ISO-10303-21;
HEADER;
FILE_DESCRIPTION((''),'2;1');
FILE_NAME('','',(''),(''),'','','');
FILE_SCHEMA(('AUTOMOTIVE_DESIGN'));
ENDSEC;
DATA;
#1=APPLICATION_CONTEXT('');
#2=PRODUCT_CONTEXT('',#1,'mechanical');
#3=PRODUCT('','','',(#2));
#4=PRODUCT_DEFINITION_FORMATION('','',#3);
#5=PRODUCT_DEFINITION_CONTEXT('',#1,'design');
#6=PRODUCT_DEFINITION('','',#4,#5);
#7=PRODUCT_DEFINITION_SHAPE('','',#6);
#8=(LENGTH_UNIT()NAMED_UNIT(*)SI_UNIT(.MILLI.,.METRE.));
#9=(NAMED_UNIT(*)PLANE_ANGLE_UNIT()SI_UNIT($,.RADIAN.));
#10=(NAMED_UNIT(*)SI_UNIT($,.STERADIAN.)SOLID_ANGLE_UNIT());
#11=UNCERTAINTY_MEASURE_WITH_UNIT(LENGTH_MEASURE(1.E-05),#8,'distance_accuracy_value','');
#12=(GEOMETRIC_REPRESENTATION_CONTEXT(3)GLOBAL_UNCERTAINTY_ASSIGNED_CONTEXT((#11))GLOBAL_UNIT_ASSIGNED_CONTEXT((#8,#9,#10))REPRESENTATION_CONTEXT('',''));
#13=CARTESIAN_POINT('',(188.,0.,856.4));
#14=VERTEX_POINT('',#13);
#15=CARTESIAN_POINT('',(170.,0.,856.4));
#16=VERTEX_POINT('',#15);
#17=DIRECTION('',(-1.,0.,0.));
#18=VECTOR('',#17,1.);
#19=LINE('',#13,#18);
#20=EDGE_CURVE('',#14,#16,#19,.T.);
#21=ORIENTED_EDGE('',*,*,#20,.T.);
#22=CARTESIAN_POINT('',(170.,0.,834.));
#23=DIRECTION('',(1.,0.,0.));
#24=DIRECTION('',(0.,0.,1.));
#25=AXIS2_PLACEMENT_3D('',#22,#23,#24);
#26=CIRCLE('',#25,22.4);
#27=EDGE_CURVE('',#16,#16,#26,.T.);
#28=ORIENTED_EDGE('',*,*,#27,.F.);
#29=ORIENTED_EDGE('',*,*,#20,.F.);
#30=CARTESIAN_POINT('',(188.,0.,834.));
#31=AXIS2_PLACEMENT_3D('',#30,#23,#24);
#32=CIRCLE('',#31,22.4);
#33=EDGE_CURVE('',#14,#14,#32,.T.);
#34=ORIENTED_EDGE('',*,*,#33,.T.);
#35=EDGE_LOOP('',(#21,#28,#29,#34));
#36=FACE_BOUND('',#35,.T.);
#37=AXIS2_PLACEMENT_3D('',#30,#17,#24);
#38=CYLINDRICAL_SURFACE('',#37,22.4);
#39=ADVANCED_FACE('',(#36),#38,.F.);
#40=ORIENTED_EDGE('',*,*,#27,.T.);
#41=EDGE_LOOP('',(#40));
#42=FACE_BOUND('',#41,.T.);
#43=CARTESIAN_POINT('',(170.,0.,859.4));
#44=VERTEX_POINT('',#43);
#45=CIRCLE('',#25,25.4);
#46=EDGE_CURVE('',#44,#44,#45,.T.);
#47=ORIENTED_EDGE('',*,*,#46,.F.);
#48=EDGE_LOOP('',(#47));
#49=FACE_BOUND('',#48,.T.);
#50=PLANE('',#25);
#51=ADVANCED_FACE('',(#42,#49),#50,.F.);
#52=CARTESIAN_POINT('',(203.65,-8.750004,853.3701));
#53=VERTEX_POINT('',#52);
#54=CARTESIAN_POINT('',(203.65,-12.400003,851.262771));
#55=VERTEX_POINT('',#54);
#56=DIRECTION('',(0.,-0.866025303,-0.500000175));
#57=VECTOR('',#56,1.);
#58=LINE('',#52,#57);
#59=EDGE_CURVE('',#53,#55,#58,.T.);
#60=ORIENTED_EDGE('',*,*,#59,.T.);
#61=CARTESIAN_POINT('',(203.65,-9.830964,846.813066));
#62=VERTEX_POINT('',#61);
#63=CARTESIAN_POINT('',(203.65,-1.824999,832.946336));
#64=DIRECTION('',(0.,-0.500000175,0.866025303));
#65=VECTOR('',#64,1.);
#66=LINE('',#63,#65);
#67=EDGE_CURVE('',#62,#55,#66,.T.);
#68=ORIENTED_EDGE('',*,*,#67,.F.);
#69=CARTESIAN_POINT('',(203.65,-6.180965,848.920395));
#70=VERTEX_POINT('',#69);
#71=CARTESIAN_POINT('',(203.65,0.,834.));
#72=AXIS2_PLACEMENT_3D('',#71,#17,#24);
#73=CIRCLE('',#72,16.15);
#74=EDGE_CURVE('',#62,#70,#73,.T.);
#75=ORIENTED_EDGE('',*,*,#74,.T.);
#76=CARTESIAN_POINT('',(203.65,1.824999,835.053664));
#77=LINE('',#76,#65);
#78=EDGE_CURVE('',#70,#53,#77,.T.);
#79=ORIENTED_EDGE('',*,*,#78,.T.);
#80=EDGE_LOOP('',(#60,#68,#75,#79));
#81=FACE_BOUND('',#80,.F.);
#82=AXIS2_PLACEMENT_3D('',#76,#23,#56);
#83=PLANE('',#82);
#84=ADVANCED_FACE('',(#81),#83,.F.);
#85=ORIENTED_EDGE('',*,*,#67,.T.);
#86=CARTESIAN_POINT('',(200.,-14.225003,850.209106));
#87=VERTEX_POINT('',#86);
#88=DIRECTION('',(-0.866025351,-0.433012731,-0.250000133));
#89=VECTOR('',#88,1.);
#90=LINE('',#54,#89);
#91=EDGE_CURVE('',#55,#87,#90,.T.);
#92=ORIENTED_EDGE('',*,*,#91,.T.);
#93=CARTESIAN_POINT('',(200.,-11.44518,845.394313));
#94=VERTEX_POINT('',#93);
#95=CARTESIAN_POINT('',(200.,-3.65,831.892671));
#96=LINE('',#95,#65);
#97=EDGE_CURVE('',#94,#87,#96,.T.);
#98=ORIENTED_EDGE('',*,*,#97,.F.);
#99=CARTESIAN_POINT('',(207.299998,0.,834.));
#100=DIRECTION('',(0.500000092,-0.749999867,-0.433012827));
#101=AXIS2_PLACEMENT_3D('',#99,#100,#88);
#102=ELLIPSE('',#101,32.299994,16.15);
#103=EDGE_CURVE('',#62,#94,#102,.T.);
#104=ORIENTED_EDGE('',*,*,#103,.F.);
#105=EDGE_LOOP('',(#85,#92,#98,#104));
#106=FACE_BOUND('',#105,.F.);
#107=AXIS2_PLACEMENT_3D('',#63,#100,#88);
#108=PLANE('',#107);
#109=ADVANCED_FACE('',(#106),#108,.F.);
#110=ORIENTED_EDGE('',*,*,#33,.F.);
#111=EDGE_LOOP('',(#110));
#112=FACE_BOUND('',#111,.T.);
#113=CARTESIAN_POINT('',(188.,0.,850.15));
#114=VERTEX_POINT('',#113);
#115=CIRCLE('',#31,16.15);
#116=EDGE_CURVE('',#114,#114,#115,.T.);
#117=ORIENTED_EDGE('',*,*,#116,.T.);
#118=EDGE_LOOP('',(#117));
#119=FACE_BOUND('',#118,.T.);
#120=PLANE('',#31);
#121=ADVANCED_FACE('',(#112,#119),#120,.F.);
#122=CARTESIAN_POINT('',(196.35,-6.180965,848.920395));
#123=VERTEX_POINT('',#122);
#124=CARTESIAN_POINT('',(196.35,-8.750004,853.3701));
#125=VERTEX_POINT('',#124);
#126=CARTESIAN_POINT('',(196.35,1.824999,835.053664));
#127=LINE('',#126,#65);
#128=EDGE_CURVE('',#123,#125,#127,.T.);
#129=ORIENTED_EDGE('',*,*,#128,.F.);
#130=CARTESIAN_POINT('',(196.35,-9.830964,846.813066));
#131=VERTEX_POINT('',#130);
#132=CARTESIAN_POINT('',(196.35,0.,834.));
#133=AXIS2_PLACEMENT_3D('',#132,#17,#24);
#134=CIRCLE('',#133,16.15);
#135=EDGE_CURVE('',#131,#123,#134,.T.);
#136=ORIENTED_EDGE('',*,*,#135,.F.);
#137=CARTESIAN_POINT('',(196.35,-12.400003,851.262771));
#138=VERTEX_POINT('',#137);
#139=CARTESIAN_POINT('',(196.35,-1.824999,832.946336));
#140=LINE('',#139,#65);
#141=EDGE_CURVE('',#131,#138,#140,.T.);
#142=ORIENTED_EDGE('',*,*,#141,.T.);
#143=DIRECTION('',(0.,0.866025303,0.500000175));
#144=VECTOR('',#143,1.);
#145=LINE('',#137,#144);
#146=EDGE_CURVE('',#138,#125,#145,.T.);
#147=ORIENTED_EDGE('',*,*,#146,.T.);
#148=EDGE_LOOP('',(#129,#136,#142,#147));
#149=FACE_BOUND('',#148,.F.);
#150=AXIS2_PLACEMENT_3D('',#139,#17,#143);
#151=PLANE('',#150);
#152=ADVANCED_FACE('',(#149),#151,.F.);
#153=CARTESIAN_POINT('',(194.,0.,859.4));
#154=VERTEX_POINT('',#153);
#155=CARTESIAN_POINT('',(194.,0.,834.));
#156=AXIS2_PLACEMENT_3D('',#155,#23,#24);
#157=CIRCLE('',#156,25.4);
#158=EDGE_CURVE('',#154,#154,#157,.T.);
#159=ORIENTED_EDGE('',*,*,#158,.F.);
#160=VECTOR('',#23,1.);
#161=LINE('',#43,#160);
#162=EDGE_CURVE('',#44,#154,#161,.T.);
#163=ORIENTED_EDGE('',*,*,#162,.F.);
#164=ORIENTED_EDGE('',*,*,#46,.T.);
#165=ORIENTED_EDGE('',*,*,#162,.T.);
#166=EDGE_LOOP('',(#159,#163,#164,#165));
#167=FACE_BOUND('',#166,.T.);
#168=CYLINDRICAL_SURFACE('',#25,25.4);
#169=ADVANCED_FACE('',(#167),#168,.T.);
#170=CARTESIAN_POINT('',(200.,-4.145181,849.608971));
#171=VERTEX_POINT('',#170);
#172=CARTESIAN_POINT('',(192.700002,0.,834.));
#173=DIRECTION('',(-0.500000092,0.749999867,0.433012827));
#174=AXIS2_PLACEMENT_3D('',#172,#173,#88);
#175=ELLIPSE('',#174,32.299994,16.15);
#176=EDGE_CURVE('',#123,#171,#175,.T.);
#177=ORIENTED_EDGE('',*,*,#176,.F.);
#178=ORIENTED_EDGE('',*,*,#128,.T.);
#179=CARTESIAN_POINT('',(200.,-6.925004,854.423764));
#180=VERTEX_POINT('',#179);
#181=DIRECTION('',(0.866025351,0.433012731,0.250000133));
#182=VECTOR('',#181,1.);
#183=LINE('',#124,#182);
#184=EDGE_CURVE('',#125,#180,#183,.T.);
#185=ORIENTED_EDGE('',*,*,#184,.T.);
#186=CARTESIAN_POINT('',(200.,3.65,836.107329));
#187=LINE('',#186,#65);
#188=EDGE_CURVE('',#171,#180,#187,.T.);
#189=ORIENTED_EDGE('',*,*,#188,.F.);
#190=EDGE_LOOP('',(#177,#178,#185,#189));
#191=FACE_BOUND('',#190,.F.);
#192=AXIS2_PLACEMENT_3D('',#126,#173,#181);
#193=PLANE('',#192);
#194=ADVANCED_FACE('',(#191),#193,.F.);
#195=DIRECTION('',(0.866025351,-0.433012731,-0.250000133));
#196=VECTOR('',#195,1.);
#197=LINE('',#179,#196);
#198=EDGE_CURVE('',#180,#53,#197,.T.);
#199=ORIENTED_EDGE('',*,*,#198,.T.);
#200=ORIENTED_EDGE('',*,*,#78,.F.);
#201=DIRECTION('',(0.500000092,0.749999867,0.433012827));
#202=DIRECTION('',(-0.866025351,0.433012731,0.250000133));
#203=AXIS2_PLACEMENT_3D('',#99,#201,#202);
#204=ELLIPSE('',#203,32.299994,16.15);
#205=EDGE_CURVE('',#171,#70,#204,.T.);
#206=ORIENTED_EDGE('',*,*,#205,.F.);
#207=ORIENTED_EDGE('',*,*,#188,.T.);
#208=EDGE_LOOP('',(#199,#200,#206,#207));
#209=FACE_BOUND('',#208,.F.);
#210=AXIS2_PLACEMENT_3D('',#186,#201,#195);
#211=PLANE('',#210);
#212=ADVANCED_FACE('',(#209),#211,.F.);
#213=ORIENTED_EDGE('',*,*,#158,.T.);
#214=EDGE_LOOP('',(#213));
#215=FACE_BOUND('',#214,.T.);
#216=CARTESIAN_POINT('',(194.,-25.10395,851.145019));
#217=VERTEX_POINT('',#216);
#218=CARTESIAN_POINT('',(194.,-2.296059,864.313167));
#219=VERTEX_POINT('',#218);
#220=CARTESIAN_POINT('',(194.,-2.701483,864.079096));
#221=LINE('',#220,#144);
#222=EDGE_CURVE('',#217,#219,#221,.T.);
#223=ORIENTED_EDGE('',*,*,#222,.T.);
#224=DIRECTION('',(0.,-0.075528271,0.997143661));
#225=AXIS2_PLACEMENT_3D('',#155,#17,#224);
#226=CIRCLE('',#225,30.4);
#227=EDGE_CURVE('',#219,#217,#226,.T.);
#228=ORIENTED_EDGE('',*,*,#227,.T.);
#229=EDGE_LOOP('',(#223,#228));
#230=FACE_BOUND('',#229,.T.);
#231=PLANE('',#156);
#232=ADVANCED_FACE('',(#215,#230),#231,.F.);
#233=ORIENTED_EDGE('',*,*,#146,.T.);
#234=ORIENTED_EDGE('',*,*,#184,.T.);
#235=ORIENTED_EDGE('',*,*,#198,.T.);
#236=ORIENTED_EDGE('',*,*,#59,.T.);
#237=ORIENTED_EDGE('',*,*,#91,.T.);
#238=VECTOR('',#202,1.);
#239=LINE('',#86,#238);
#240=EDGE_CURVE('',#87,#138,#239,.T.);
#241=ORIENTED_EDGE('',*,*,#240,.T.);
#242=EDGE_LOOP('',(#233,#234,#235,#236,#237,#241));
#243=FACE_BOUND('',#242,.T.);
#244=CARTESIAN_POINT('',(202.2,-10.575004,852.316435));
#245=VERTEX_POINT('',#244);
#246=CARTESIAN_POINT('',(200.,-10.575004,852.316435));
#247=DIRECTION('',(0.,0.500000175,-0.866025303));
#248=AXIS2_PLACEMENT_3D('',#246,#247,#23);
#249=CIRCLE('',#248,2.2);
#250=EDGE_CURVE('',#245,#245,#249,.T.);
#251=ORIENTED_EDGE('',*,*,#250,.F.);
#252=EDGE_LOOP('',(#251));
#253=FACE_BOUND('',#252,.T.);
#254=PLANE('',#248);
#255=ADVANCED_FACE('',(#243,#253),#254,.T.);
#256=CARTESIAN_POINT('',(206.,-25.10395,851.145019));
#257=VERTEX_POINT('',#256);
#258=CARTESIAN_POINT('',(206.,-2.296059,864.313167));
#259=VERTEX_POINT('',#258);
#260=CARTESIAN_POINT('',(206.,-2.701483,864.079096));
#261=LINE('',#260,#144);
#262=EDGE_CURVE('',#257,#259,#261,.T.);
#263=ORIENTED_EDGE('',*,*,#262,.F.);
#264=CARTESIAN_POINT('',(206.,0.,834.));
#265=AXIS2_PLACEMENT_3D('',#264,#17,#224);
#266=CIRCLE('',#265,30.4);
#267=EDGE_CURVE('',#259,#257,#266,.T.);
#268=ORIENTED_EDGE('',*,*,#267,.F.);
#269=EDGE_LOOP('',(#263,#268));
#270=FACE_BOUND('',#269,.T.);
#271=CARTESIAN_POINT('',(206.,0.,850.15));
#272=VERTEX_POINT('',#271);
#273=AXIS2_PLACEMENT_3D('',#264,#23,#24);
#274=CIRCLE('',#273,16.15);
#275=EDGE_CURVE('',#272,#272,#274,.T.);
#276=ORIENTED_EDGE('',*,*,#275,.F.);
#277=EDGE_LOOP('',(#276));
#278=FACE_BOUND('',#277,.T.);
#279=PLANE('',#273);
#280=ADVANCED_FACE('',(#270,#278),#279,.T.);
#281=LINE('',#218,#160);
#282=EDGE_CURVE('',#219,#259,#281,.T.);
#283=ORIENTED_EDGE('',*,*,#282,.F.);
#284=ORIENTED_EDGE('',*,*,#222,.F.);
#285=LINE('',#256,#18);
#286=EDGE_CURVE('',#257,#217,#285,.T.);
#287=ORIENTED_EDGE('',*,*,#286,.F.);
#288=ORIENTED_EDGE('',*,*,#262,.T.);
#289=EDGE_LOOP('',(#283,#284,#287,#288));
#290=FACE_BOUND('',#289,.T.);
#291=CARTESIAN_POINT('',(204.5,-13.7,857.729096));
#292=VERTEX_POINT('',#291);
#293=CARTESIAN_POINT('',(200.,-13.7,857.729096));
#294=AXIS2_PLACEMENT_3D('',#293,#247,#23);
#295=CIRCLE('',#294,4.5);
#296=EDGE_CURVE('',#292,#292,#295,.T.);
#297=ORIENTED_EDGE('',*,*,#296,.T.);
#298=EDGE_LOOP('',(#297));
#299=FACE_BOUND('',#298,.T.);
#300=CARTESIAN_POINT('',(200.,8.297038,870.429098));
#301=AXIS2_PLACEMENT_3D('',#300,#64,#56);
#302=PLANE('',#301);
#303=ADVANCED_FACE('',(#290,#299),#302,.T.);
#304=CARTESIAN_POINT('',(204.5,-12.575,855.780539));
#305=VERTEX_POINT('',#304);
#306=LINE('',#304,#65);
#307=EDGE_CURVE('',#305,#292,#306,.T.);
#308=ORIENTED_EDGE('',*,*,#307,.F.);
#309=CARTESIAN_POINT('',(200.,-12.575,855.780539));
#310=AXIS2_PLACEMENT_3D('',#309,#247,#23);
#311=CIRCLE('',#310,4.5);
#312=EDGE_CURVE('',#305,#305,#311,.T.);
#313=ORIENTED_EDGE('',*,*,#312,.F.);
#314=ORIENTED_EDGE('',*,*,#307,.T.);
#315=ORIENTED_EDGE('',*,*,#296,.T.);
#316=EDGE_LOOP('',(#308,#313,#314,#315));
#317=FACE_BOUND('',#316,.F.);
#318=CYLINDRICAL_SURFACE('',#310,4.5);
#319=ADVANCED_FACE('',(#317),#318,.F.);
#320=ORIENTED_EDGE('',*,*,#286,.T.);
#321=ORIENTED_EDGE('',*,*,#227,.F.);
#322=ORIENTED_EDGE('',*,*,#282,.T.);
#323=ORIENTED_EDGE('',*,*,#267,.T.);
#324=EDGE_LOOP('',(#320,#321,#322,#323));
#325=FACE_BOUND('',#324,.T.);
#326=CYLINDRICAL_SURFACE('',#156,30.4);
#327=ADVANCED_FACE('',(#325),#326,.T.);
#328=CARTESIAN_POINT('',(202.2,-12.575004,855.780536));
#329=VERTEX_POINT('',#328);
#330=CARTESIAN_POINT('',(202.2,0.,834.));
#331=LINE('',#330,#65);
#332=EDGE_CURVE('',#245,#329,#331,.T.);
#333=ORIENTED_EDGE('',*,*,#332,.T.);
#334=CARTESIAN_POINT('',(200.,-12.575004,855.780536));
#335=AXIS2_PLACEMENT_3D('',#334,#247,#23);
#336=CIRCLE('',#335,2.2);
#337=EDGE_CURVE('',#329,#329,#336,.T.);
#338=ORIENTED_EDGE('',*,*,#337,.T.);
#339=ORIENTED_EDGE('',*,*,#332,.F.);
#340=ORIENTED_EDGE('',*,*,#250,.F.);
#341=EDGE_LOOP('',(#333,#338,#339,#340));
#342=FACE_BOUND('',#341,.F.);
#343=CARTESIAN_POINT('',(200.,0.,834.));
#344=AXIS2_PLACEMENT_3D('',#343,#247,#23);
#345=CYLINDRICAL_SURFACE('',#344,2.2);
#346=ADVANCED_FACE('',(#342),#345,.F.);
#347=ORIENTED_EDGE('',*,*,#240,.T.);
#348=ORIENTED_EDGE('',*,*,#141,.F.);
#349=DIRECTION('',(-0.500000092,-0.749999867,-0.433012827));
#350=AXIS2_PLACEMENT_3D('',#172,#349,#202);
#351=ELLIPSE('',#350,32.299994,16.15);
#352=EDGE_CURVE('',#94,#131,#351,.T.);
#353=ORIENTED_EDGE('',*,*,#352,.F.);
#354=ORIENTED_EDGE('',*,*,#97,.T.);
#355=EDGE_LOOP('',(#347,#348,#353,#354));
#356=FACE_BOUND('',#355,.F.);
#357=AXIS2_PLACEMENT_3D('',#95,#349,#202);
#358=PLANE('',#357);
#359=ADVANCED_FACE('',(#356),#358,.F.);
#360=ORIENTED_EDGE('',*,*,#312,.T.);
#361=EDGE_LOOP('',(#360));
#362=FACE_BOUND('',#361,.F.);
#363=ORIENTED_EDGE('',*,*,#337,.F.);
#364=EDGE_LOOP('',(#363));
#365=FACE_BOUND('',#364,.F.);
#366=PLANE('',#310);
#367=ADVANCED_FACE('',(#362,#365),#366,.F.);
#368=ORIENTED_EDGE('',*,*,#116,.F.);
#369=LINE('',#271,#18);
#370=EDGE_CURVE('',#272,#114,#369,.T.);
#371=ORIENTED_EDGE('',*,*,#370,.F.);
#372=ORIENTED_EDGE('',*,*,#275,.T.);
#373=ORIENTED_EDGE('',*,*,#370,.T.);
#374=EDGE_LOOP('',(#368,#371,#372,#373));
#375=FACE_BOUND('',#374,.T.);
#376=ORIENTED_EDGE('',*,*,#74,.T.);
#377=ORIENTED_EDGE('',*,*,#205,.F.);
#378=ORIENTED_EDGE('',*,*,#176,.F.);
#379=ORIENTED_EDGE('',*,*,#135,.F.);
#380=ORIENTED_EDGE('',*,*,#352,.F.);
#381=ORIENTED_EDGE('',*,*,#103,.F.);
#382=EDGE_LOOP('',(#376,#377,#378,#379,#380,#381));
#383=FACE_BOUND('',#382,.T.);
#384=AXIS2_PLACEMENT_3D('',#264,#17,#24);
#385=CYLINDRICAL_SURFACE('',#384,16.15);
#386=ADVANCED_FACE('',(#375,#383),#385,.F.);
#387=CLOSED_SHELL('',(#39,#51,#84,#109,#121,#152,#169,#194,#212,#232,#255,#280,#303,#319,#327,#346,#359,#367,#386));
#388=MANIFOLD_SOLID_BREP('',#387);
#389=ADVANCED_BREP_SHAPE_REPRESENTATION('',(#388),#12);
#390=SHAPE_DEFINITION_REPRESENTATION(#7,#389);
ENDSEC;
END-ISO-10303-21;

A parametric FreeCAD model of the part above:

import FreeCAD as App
import Part
import Sketcher
Q = App.Units.Quantity


def add_polygon(sketch, points):
    """Adds a closed chain of lines whose ends are joined by coincident constraints."""
    first, n = sketch.GeometryCount, len(points)
    for a, b in zip(points, points[1:] + points[:1]):
        sketch.addGeometry(Part.LineSegment(App.Vector(*a, 0), App.Vector(*b, 0)), False)
    for i in range(n):
        sketch.addConstraint(Sketcher.Constraint("Coincident", first + i, 2, first + (i + 1) % n, 1))

doc = App.newDocument("Part")
body = doc.addObject("PartDesign::Body", "Body")

sketch1 = body.newObject("Sketcher::SketchObject", "Sketch")
sketch1.AttachmentSupport = (doc.getObject("XZ_Plane"), [""])
sketch1.MapMode = "FlatFace"
add_polygon(sketch1, [(0, 30.4), (0, 25.4), (-24, 25.4), (-24, 22.4), (-6, 22.4), (-6, 16.15), (12, 16.15), (12, 30.4)])
sketch1.addConstraint([
    Sketcher.Constraint("Vertical", 0),
    Sketcher.Constraint("Horizontal", 1),
    Sketcher.Constraint("Vertical", 2),
    Sketcher.Constraint("Horizontal", 3),
    Sketcher.Constraint("Vertical", 4),
    Sketcher.Constraint("Horizontal", 5),
    Sketcher.Constraint("Vertical", 6),
    Sketcher.Constraint("Horizontal", 7),
    Sketcher.Constraint("PointOnObject", 0, 2, -2),
    Sketcher.Constraint("Equal", 3, 5),
    Sketcher.Constraint("DistanceX", 1, 2, 1, 1, 24.0),
    Sketcher.Constraint("DistanceX", 3, 1, 3, 2, 18.0),
    Sketcher.Constraint("DistanceY", 0, 2, 0, 1, 5.0),
    Sketcher.Constraint("DistanceY", 2, 2, 2, 1, 3.0),
    Sketcher.Constraint("DistanceY", 4, 2, 4, 1, 6.25),
    Sketcher.Constraint("DistanceY", -1, 1, 0, 2, 25.4),
])
revolution = body.newObject("PartDesign::Revolution", "Revolution")
revolution.Profile = sketch1
revolution.ReferenceAxis = (sketch1, ["H_Axis"])
revolution.Angle = 360

sketch2 = body.newObject("Sketcher::SketchObject", "Sketch001")
sketch2.AttachmentSupport = (doc.getObject("YZ_Plane"), [""])
sketch2.MapMode = "FlatFace"
sketch2.AttachmentOffset = App.Placement(App.Vector(0, 0, 6), App.Rotation())
add_polygon(sketch2, [(8.297038, 36.429098), (4.797037, 42.491275), (-39.197049, 17.091266), (-35.697047, 11.029089)])
sketch2.addConstraint([
    Sketcher.Constraint("Perpendicular", 0, 1),
    Sketcher.Constraint("Perpendicular", 1, 2),
    Sketcher.Constraint("Perpendicular", 2, 3),
    Sketcher.Constraint("Angle", 0, Q("120.000012 deg")),
    Sketcher.Constraint("Distance", 0, 7.0),
    Sketcher.Constraint("Distance", 1, 50.8),
    Sketcher.Constraint("DistanceX", 1, 2, -1, 1, 39.197049),
    Sketcher.Constraint("DistanceY", -1, 1, 2, 2, 11.029089),
])
pocket1 = body.newObject("PartDesign::Pocket", "Pocket")
pocket1.Profile = sketch2
pocket1.Type = "ThroughAll"
pocket1.Midplane = True

sketch3 = body.newObject("Sketcher::SketchObject", "Sketch002")
sketch3.Placement = App.Placement(App.Vector(6, 0, 0), App.Rotation(App.Vector(1, 0, 0), App.Vector(0, -0.866025303, -0.500000175), App.Vector(0, 0.500000175, -0.866025303), "ZXY"))
sketch3.addGeometry(Part.Circle(App.Vector(0, 0, 0), App.Vector(0, 0, 1), 2.2), False)
sketch3.addConstraint([
    Sketcher.Constraint("Coincident", 0, 3, -1, 1),
    Sketcher.Constraint("Diameter", 0, 4.4),
])
pocket2 = body.newObject("PartDesign::Pocket", "Pocket001")
pocket2.Profile = sketch3
pocket2.Type = "ThroughAll"

sketch4 = body.newObject("Sketcher::SketchObject", "Sketch003")
sketch4.Placement = App.Placement(App.Vector(6, 0, 0), App.Rotation(App.Vector(1, 0, 0), App.Vector(0, -0.866025303, -0.500000175), App.Vector(0, 0.500000175, -0.866025303), "ZXY"))
add_polygon(sketch4, [(3.65, -2.107328), (3.65, 2.107328), (0, 4.214657), (-3.65, 2.107328), (-3.65, -2.107328), (0, -4.214657)])
sketch4.addConstraint([
    Sketcher.Constraint("Vertical", 0),
    Sketcher.Constraint("Vertical", 3),
    Sketcher.Constraint("Symmetric", 0, 2, 3, 2, -1, 1),
    Sketcher.Constraint("Symmetric", 1, 2, 4, 2, -1, 1),
    Sketcher.Constraint("PointOnObject", 1, 2, -2),
    Sketcher.Constraint("Parallel", 2, 5),
    Sketcher.Constraint("Horizontal", 0, 2, 2, 2),
    Sketcher.Constraint("Angle", 1, Q("149.999994 deg")),
    Sketcher.Constraint("DistanceX", 2, 2, 0, 2, 7.3),
    Sketcher.Constraint("DistanceY", 0, 1, 0, 2, 4.214656),
])
pocket3 = body.newObject("PartDesign::Pocket", "Pocket002")
pocket3.Profile = sketch4
pocket3.Length = 21.15

sketch5 = body.newObject("Sketcher::SketchObject", "Sketch004")
sketch5.Placement = App.Placement(App.Vector(6, -12.575, 21.780539), App.Rotation(App.Vector(1, 0, 0), App.Vector(0, -0.866025303, -0.500000175), App.Vector(0, 0.500000175, -0.866025303), "ZXY"))
sketch5.addGeometry(Part.Circle(App.Vector(0, 0, 0), App.Vector(0, 0, 1), 4.5), False)
sketch5.addConstraint([
    Sketcher.Constraint("Coincident", 0, 3, -1, 1),
    Sketcher.Constraint("Diameter", 0, 9.0),
])
pocket4 = body.newObject("PartDesign::Pocket", "Pocket003")
pocket4.Profile = sketch5
pocket4.Length = 5
body2 = doc.addObject("PartDesign::Body", "Body001")
doc.recompute()

body.Placement = App.Placement(App.Vector(194, 0, 834), App.Rotation(App.Vector(0, 0, 1), 0))
boolean = body2.newObject("PartDesign::Boolean", "Boolean")
boolean.Type = "Fuse"
boolean.addObjects([body])

doc.recompute()
